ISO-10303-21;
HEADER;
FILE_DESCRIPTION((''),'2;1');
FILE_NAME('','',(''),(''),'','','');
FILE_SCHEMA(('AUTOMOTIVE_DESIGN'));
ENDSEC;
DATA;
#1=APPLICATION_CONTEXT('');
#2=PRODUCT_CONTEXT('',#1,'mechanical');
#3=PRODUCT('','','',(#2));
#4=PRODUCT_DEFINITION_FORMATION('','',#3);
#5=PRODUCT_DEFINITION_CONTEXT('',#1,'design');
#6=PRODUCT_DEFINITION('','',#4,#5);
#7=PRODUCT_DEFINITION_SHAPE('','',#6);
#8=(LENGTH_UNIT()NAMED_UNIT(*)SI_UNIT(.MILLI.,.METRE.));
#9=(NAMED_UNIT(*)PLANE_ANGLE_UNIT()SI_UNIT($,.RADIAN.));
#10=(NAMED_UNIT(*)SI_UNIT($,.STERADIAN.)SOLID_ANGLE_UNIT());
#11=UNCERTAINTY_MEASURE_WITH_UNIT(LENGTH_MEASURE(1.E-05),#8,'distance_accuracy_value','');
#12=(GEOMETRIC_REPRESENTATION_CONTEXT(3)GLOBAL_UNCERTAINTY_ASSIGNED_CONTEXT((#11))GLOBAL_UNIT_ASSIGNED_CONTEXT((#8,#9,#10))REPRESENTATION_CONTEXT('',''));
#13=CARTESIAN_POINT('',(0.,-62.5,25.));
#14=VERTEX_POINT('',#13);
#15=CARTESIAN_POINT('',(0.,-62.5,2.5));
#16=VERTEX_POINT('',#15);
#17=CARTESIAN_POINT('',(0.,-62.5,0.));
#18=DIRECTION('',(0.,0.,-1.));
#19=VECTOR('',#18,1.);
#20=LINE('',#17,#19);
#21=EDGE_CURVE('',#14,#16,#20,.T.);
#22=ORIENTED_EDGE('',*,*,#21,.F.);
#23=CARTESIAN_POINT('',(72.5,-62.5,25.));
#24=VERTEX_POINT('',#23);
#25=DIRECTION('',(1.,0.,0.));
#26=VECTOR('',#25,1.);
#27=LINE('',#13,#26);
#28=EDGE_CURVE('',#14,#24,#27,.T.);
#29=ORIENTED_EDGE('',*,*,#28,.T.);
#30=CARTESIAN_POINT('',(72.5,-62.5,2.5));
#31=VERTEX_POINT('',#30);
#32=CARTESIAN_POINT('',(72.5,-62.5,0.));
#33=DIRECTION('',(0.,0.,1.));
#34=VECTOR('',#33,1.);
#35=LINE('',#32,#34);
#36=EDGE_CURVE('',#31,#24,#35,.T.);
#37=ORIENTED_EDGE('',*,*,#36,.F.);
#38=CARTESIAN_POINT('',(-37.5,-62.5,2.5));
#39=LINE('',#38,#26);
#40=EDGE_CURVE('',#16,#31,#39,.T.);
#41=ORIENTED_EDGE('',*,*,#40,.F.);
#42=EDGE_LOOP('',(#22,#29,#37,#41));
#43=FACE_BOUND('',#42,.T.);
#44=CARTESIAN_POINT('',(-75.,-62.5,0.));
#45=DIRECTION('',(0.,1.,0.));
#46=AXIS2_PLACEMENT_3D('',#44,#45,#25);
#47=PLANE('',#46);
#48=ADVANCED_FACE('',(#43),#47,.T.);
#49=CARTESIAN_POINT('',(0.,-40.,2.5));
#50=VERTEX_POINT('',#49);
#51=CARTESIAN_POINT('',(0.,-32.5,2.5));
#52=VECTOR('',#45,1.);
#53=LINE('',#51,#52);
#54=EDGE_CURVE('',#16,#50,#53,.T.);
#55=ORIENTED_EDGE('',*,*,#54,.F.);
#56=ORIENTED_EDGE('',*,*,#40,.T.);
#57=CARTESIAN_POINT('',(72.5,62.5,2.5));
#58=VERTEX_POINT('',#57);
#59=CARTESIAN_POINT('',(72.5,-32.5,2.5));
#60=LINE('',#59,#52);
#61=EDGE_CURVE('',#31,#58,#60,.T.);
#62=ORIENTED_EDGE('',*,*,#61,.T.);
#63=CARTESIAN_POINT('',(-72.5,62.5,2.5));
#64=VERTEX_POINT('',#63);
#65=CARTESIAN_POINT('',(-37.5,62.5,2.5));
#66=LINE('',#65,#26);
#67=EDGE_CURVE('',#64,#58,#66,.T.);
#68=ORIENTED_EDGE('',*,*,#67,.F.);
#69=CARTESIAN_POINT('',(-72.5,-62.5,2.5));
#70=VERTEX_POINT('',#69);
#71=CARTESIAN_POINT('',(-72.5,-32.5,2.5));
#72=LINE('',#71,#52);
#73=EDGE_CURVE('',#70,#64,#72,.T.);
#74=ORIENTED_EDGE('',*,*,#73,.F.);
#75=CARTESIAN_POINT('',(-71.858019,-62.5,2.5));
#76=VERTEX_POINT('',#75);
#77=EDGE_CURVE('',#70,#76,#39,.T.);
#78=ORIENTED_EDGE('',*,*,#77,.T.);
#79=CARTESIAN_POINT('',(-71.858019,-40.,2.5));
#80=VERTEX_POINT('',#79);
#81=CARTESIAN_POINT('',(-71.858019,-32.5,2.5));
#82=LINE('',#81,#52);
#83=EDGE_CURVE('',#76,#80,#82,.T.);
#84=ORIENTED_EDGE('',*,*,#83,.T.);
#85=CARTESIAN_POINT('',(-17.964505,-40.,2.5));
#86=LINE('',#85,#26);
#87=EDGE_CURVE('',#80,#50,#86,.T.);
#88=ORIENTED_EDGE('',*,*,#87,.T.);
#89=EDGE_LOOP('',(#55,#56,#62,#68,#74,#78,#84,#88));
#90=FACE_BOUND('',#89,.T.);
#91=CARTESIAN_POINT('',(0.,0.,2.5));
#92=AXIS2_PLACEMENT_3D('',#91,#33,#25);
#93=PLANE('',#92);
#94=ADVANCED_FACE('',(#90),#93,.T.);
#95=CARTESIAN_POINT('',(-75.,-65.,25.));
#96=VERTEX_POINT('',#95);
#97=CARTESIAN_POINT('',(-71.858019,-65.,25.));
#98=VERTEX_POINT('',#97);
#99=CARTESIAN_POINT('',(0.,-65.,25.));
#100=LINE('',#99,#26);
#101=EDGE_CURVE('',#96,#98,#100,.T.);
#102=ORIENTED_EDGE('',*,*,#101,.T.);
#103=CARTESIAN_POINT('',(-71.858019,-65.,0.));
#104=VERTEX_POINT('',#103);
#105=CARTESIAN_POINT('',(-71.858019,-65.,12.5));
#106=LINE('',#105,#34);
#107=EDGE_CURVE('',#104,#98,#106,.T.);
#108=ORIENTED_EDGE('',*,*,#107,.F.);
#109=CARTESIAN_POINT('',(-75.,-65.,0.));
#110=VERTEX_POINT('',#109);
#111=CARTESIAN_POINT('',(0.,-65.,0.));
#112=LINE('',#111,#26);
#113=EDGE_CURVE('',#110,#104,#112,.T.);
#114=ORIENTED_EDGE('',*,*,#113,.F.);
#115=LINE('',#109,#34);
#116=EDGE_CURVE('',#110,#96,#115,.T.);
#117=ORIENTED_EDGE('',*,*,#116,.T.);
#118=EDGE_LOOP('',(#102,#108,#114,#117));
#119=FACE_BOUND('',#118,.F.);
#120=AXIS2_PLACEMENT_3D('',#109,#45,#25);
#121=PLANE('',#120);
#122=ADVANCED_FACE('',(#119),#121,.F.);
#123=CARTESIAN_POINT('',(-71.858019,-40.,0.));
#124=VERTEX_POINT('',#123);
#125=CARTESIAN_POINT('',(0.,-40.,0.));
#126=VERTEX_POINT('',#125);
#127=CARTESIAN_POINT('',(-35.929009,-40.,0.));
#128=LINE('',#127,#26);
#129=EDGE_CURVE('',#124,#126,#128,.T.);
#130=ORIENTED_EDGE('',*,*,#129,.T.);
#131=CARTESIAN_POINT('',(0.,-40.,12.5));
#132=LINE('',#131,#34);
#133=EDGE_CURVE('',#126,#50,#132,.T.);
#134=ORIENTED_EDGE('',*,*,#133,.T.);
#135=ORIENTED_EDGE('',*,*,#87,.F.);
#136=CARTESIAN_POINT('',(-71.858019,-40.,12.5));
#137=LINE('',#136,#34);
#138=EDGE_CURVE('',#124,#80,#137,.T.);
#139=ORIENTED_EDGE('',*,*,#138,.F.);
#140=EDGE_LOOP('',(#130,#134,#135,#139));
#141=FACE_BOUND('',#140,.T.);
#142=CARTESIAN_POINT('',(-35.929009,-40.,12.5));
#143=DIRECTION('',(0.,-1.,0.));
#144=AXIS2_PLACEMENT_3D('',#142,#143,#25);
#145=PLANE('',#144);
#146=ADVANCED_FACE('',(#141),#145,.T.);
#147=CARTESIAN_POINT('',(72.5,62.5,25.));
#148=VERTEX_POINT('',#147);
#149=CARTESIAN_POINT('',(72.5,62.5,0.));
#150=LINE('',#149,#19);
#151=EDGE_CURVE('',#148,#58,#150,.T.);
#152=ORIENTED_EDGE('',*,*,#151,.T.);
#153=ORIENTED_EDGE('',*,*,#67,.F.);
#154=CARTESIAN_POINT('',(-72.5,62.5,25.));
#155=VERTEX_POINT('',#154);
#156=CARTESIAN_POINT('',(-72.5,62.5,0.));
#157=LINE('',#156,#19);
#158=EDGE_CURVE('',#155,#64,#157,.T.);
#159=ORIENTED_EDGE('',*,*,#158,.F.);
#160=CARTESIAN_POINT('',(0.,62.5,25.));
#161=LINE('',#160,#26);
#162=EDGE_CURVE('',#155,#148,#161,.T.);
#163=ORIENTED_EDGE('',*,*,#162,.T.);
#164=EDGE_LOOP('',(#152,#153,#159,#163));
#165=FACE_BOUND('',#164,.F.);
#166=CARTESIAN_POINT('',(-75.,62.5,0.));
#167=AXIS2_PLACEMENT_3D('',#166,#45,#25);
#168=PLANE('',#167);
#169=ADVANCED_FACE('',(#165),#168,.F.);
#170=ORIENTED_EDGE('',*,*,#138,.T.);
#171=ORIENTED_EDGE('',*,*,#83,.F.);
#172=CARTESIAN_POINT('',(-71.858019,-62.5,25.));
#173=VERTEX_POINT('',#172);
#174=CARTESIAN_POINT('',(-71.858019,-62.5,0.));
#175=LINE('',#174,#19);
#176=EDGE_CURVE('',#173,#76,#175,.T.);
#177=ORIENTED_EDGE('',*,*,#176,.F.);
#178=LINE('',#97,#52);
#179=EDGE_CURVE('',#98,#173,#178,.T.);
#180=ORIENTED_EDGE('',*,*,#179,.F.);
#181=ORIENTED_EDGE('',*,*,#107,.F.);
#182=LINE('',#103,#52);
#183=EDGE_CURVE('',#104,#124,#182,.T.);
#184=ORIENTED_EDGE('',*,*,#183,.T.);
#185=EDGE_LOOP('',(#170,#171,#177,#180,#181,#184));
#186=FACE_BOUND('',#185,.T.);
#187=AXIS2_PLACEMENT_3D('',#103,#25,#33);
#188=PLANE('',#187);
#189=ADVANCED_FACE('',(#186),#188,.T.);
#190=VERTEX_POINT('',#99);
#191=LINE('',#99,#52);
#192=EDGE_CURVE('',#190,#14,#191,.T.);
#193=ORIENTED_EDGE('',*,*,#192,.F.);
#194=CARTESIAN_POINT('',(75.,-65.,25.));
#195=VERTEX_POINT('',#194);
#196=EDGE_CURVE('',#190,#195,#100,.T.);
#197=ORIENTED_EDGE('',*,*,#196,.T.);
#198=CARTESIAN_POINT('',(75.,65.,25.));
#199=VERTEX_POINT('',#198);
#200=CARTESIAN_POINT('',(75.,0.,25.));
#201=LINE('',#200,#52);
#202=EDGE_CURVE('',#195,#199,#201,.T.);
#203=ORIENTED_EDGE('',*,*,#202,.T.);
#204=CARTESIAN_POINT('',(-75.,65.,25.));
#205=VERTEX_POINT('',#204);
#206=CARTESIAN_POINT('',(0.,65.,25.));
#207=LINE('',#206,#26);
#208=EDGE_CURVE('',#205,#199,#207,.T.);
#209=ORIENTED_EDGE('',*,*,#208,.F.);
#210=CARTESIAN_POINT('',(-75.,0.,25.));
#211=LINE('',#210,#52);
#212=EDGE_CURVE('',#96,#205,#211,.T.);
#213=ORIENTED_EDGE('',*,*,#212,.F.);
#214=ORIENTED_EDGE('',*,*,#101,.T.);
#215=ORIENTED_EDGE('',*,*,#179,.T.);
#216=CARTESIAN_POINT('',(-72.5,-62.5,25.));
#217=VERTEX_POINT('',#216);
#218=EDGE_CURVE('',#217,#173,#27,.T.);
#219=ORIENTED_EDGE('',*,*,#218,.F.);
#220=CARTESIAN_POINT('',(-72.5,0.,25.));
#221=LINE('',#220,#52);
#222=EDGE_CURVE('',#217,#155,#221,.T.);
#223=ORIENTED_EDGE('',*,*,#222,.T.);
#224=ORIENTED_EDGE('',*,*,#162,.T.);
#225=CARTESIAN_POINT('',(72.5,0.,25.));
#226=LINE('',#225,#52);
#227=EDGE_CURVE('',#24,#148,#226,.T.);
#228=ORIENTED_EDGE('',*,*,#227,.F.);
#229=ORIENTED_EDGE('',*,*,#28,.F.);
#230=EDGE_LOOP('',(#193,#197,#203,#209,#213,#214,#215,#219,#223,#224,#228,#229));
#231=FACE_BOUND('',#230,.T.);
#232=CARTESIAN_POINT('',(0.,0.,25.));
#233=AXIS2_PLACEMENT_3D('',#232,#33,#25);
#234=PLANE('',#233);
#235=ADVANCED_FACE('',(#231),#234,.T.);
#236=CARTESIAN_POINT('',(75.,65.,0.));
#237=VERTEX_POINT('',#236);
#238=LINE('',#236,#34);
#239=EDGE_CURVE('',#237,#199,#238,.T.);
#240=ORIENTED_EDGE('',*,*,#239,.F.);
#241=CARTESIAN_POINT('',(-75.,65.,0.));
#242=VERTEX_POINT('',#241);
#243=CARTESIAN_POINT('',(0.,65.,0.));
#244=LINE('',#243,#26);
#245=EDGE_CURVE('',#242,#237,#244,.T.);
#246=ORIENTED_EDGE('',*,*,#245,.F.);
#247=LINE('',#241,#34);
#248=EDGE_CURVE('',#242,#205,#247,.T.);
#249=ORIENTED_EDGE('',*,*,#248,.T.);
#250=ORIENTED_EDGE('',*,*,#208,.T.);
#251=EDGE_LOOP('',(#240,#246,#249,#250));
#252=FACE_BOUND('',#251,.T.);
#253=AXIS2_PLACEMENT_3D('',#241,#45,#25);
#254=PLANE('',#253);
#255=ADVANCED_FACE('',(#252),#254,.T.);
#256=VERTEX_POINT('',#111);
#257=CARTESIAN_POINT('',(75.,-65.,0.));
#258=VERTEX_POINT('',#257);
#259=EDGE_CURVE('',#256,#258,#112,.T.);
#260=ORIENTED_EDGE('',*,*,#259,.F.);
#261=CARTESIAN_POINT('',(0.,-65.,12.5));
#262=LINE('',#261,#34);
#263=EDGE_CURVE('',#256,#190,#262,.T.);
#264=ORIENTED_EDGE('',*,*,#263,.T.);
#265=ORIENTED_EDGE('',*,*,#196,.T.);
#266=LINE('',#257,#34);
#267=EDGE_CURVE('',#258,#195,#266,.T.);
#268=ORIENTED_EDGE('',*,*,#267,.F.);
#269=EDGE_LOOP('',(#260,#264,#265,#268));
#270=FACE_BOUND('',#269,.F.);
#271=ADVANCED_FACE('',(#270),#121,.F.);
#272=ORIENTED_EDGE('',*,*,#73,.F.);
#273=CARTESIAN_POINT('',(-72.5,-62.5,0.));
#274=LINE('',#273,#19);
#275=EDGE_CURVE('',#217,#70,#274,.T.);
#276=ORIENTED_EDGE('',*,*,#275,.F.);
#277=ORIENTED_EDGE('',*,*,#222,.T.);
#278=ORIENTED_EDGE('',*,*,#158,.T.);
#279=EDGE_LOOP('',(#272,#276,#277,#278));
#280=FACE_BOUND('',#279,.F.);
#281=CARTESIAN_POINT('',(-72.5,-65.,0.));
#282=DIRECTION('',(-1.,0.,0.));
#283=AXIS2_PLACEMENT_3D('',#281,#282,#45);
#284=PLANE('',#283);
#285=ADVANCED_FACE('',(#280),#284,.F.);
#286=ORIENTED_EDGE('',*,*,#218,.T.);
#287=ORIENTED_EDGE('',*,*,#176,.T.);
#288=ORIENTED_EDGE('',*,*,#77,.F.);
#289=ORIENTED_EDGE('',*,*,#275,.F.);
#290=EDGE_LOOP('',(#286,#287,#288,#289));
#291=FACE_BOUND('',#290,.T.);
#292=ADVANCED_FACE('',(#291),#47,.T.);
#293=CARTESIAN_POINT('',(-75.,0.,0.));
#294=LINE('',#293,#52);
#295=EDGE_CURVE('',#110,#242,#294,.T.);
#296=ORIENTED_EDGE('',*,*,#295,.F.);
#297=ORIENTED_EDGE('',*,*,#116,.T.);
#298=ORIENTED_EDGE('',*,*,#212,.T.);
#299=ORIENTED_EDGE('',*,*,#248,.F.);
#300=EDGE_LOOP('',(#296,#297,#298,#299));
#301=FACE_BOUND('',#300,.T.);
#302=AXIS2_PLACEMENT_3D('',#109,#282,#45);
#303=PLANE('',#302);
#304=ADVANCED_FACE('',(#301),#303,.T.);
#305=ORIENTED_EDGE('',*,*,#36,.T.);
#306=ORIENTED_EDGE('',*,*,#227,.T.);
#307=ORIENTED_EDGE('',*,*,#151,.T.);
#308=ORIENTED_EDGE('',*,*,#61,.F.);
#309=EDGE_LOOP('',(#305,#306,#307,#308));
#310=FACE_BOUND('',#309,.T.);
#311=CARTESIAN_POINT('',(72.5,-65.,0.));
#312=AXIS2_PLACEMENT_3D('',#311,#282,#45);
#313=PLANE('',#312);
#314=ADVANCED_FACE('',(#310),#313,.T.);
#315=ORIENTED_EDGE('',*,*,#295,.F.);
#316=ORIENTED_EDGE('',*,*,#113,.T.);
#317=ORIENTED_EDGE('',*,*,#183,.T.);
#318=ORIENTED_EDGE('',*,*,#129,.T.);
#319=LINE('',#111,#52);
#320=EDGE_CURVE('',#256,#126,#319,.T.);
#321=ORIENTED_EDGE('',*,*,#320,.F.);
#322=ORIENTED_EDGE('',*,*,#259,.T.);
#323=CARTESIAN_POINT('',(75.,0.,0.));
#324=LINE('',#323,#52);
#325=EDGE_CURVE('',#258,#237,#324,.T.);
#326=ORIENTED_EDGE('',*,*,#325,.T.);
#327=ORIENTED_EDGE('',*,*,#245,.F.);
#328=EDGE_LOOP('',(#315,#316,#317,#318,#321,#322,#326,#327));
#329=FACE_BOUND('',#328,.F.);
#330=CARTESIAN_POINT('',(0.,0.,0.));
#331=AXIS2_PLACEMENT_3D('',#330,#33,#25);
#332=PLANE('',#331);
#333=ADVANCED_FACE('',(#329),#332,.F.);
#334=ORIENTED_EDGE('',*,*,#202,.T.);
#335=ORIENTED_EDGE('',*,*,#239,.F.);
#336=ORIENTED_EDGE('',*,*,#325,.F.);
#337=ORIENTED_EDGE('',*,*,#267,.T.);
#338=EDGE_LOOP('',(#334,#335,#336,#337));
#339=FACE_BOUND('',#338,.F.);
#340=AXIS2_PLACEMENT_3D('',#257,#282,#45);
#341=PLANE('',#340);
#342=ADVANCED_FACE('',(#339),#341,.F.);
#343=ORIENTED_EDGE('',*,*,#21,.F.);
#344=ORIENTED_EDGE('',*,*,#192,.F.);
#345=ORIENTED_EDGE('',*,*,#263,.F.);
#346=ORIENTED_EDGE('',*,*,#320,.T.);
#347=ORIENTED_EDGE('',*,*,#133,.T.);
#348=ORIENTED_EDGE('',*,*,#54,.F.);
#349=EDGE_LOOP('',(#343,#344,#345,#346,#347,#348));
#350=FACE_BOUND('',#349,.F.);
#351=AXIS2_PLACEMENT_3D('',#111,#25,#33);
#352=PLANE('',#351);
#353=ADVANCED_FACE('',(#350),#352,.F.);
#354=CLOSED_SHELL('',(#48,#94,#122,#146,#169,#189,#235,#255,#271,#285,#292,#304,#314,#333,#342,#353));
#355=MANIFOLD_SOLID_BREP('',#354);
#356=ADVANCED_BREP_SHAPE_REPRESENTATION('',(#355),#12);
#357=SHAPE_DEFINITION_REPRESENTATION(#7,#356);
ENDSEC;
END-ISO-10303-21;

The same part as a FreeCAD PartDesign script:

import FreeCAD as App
import Part
import Sketcher


def faces_at(feature, points):
    """Names of the faces that lie closest to the given points."""
    faces = feature.Shape.Faces
    near = lambda p: min(range(len(faces)), key=lambda i: faces[i].distToShape(Part.Vertex(*p))[0])
    return sorted({f"Face{near(p) + 1}" for p in points})

doc = App.newDocument("Part")
body = doc.addObject("PartDesign::Body", "Body")

# Sketch on XY plane
sketch1 = body.newObject("Sketcher::SketchObject", "Sketch")
sketch1.AttachmentSupport = (doc.getObject("XY_Plane"), [""])
sketch1.MapMode = "FlatFace"
sketch1.addGeometry([
    Part.LineSegment(App.Vector(-75, 65, 0), App.Vector(-75, -65, 0)),
    Part.LineSegment(App.Vector(-75, -65, 0), App.Vector(75, -65, 0)),
    Part.LineSegment(App.Vector(75, -65, 0), App.Vector(75, 65, 0)),
    Part.LineSegment(App.Vector(75, 65, 0), App.Vector(-75, 65, 0)),
], False)
sketch1.addConstraint([
    Sketcher.Constraint("Coincident", 0, 2, 1, 1),
    Sketcher.Constraint("Coincident", 1, 2, 2, 1),
    Sketcher.Constraint("Coincident", 2, 2, 3, 1),
    Sketcher.Constraint("Coincident", 3, 2, 0, 1),
    Sketcher.Constraint("Vertical", 0),
    Sketcher.Constraint("Horizontal", 1),
    Sketcher.Constraint("Vertical", 2),
    Sketcher.Constraint("Horizontal", 3),
    Sketcher.Constraint("Symmetric", 0, 2, 2, 2, -1, 1),
    Sketcher.Constraint("DistanceX", 1, 1, 1, 2, 150.0),
    Sketcher.Constraint("DistanceY", 0, 2, 0, 1, 130.0),
])
pad1 = body.newObject("PartDesign::Pad", "Pad")
pad1.Profile = sketch1
pad1.Length = 25
doc.recompute()

thickness = body.newObject("PartDesign::Thickness", "Thickness")
thickness.Base = (pad1, faces_at(pad1, [(0, 0, 25)]))
thickness.Value = 2.5
thickness.Reversed = True
thickness.Join = "Arc"

# Sketch on XZ plane
sketch2 = body.newObject("Sketcher::SketchObject", "Sketch001")
sketch2.AttachmentSupport = (doc.getObject("XZ_Plane"), [""])
sketch2.MapMode = "FlatFace"
sketch2.AttachmentOffset = App.Placement(App.Vector(0, 0, 65), App.Rotation())
sketch2.addGeometry([
    Part.LineSegment(App.Vector(-71.858019, 25, 0), App.Vector(-71.858019, 0, 0)),
    Part.LineSegment(App.Vector(-71.858019, 0, 0), App.Vector(0, 0, 0)),
    Part.LineSegment(App.Vector(0, 0, 0), App.Vector(0, 25, 0)),
    Part.LineSegment(App.Vector(0, 25, 0), App.Vector(-71.858019, 25, 0)),
], False)
sketch2.addConstraint([
    Sketcher.Constraint("Coincident", 0, 2, 1, 1),
    Sketcher.Constraint("Coincident", 1, 2, 2, 1),
    Sketcher.Constraint("Coincident", 2, 2, 3, 1),
    Sketcher.Constraint("Coincident", 3, 2, 0, 1),
    Sketcher.Constraint("Vertical", 0),
    Sketcher.Constraint("Horizontal", 1),
    Sketcher.Constraint("Vertical", 2),
    Sketcher.Constraint("Horizontal", 3),
    Sketcher.Constraint("Coincident", 1, 2, -1, 1),
    Sketcher.Constraint("DistanceY", 0, 2, 0, 1, 25.0),
    Sketcher.Constraint("DistanceX", 1, 1, 1, 2, 71.858019),
])
pocket1 = body.newObject("PartDesign::Pocket", "Pocket")
pocket1.Profile = sketch2
pocket1.Length = 25

doc.recompute()
